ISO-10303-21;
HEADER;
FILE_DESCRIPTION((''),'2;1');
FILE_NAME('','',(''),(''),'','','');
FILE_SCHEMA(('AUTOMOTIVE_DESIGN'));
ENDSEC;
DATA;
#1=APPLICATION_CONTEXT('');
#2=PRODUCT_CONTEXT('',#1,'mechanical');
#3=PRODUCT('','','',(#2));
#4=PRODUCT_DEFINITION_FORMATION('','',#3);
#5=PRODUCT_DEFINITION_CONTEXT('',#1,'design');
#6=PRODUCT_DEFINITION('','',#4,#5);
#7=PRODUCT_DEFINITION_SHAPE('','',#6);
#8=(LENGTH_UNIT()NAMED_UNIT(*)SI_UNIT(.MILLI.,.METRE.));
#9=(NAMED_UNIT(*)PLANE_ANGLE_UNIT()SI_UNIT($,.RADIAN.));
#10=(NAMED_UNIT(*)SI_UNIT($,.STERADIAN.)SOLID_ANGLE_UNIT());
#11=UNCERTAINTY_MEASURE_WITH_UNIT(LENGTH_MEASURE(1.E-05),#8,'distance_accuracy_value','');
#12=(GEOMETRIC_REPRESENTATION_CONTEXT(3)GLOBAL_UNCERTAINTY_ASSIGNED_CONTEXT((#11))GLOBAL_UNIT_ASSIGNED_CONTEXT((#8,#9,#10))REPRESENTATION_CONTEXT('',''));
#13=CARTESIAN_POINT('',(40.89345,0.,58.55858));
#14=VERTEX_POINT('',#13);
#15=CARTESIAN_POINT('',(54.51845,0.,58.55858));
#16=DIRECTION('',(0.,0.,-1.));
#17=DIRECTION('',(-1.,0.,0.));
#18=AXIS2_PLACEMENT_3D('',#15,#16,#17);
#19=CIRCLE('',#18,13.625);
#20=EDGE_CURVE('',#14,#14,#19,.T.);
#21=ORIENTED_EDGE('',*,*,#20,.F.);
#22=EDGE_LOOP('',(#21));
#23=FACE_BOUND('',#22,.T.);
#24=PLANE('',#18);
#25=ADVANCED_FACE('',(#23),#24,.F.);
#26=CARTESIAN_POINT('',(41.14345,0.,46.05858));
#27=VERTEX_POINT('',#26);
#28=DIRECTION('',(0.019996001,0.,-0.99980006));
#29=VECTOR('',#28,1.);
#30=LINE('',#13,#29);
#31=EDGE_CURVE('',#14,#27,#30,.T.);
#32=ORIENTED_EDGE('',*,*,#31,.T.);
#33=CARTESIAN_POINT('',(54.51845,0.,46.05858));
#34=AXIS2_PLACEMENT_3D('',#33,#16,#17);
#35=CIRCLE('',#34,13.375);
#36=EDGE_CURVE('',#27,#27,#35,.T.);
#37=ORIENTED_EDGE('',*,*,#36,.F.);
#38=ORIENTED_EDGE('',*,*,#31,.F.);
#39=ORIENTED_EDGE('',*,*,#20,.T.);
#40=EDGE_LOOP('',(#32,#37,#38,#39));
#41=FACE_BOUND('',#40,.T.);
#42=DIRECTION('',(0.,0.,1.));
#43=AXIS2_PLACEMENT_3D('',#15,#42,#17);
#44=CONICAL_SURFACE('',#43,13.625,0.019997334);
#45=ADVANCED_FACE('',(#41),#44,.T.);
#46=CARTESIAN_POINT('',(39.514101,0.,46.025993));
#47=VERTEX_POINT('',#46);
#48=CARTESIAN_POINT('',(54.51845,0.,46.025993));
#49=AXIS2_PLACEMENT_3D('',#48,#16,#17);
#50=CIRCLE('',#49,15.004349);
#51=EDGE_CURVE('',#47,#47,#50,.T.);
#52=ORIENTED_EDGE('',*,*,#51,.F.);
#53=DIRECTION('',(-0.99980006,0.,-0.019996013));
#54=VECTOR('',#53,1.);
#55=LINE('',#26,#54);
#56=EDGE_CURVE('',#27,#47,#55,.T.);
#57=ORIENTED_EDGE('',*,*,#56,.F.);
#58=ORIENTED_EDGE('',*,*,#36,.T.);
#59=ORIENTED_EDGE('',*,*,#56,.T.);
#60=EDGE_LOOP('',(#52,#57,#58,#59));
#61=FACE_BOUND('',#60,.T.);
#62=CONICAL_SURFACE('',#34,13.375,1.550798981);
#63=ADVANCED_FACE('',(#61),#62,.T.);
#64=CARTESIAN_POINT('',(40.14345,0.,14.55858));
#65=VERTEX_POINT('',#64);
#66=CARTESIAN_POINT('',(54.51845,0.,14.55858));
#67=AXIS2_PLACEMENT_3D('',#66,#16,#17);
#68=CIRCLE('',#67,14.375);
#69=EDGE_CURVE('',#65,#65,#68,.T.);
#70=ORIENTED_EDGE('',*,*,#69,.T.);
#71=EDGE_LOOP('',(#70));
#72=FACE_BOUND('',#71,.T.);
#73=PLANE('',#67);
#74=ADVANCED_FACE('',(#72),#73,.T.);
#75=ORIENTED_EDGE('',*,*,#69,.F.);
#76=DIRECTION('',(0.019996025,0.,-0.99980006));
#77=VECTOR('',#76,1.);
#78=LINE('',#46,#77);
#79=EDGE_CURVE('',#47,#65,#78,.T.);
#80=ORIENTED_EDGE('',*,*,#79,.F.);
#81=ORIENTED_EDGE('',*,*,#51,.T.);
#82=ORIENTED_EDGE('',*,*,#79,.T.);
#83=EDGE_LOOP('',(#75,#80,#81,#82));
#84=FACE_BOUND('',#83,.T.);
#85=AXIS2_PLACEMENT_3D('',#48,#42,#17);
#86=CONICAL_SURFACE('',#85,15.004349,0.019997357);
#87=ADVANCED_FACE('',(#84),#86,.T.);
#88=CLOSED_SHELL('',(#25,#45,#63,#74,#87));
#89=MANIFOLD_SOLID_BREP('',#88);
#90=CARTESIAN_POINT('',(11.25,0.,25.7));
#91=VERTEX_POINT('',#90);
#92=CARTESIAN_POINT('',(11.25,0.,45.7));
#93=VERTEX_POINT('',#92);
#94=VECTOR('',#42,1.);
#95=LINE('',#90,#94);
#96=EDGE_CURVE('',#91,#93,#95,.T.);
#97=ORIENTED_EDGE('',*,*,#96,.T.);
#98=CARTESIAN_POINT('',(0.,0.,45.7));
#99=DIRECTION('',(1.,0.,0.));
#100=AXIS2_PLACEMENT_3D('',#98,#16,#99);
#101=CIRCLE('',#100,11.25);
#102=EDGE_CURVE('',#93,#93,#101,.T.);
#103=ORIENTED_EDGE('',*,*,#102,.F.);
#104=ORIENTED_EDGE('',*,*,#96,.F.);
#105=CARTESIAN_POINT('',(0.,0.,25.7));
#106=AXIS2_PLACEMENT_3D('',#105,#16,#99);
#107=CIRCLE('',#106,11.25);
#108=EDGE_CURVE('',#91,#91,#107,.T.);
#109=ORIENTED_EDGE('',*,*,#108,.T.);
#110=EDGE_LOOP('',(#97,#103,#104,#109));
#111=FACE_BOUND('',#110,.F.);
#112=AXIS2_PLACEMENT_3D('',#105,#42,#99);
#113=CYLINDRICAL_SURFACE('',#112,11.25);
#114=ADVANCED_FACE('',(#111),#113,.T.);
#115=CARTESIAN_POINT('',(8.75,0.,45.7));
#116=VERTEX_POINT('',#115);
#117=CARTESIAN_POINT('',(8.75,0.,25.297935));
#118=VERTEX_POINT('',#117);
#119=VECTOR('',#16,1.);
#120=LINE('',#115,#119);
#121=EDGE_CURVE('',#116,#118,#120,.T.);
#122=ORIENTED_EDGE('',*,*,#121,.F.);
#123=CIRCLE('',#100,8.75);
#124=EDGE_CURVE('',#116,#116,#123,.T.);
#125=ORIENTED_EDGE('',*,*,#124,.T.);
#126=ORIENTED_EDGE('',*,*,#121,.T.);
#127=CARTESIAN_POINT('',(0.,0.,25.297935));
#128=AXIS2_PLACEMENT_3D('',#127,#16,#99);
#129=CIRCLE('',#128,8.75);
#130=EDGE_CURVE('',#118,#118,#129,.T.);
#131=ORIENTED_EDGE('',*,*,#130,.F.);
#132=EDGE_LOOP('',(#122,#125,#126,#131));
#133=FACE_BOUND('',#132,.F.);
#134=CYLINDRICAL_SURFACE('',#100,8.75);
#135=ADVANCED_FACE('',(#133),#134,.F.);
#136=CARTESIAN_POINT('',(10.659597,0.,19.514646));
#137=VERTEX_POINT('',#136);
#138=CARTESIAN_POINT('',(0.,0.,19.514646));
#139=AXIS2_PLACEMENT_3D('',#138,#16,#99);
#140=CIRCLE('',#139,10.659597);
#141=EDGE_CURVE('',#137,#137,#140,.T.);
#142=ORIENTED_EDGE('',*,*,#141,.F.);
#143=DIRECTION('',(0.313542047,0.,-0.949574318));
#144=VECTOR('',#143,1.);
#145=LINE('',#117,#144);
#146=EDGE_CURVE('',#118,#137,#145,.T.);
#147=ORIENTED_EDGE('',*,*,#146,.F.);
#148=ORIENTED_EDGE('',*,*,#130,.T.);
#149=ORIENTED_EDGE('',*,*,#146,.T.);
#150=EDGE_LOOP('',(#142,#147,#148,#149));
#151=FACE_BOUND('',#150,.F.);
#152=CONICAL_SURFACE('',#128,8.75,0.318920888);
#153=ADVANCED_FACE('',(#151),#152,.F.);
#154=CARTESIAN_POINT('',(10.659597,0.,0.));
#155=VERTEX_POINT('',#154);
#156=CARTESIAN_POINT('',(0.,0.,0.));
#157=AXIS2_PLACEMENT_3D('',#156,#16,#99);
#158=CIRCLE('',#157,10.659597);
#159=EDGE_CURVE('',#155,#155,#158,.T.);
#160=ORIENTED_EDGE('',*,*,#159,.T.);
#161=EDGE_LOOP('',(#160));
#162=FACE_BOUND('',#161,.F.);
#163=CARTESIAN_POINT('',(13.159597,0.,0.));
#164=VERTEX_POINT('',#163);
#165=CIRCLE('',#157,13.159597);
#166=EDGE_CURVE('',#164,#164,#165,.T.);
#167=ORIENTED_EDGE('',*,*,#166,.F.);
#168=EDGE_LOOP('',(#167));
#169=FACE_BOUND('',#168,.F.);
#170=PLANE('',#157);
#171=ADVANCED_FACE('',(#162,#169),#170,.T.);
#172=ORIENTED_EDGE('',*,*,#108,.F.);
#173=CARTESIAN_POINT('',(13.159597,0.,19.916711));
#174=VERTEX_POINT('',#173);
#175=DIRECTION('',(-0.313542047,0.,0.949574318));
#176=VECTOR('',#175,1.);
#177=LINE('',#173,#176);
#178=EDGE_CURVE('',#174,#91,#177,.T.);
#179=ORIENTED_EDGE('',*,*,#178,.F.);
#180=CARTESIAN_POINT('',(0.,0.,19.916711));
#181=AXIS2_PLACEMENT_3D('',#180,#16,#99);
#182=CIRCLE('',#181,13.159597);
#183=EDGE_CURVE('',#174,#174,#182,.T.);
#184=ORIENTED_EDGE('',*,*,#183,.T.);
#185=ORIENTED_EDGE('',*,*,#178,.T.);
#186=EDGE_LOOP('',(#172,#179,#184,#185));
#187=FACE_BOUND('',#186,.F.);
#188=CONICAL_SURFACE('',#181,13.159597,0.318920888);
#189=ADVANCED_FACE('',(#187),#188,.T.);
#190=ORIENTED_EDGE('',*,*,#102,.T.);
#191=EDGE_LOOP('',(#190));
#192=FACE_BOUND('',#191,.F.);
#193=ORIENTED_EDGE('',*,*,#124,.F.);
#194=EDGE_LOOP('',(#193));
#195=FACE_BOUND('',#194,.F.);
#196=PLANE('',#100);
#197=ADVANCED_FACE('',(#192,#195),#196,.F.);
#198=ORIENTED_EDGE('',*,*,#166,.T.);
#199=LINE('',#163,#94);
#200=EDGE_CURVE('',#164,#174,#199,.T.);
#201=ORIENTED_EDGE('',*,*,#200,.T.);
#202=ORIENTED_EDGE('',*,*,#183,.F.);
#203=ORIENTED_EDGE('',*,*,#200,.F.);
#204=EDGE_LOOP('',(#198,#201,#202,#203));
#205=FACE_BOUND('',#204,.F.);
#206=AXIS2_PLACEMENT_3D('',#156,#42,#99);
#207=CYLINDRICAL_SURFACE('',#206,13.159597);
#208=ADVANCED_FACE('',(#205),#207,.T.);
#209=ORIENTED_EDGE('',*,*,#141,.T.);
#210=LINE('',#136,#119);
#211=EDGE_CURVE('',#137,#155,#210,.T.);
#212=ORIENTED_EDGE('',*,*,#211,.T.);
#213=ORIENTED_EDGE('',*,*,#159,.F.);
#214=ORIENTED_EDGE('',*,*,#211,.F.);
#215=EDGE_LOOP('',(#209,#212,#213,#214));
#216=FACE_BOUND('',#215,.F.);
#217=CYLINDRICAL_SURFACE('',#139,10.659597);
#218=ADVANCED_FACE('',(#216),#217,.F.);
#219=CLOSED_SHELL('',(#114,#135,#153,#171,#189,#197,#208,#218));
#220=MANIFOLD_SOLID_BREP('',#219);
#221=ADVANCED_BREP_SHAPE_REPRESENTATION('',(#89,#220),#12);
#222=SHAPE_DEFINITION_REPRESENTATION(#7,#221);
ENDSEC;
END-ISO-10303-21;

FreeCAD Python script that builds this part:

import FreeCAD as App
import Part
import Sketcher


def add_polygon(sketch, points):
    """Adds a closed chain of lines whose ends are joined by coincident constraints."""
    first, n = sketch.GeometryCount, len(points)
    for a, b in zip(points, points[1:] + points[:1]):
        sketch.addGeometry(Part.LineSegment(App.Vector(*a, 0), App.Vector(*b, 0)), False)
    for i in range(n):
        sketch.addConstraint(Sketcher.Constraint("Coincident", first + i, 2, first + (i + 1) % n, 1))

doc = App.newDocument("Part")
params = doc.addObject("Spreadsheet::Sheet", "Params")
for row, (alias, value) in enumerate([
    ("sketch1_height", "20 mm"),
    ("sketch1_width", "2.5 mm"),
    ("revolution_angle", "360 deg"),
    ("sketch2_height", "44 mm"),
    ("revolution2_angle", "360 deg"),
], start=1):
    params.set(f"A{row}", alias)
    params.set(f"B{row}", "=" + value)
    params.setAlias(f"B{row}", alias)

body = doc.addObject("PartDesign::Body", "Body")

# Sketch on XZ plane
sketch1 = body.newObject("Sketcher::SketchObject", "Sketch")
sketch1.AttachmentSupport = (doc.getObject("XZ_Plane"), [""])
sketch1.MapMode = "FlatFace"
add_polygon(sketch1, [(11.2, 25.7), (11.2, 45.7), (8.8, 45.7), (8.8, 25.3), (10.7, 19.5), (10.7, 0), (13.2, 0), (13.2, 19.9)])  # lines 0-7
sketch1.addConstraint([
    Sketcher.Constraint("Vertical", 0),
    Sketcher.Constraint("Horizontal", 1),
    Sketcher.Constraint("Vertical", 2),
    Sketcher.Constraint("Vertical", 4),
    Sketcher.Constraint("Horizontal", 5),
    Sketcher.Constraint("Vertical", 6),
    Sketcher.Constraint("PointOnObject", 4, 2, -1),
    Sketcher.Constraint("Parallel", 3, 7),
    Sketcher.Constraint("Equal", 1, 5),
    Sketcher.Constraint("DistanceY", 0, 1, 0, 2, 20.0),
    Sketcher.Constraint("DistanceX", 1, 2, 1, 1, 2.5),
    Sketcher.Constraint("DistanceY", -1, 1, 0, 2, 45.7),
    Sketcher.Constraint("DistanceX", -1, 1, 0, 2, 11.25),
    Sketcher.Constraint("Distance", 3, 6.090402),
    Sketcher.Constraint("DistanceY", 6, 1, 6, 2, 19.916711),
    Sketcher.Constraint("DistanceY", 2, 2, 2, 1, 20.402065),
])
sketch1.setExpression("Constraints[17]", "Params.sketch1_height")
sketch1.setExpression("Constraints[18]", "Params.sketch1_width")
revolution = body.newObject("PartDesign::Revolution", "Revolution")
revolution.Profile = sketch1
revolution.ReferenceAxis = (sketch1, ["V_Axis"])
revolution.setExpression("Angle", "Params.revolution_angle")
body2 = doc.addObject("PartDesign::Body", "Body001")

# Sketch on XZ plane
sketch2 = body2.newObject("Sketcher::SketchObject", "Sketch001")
sketch2.AttachmentSupport = (doc.getObject("XZ_Plane001"), [""])
sketch2.MapMode = "FlatFace"
add_polygon(sketch2, [(39.5, 46), (40.1, 14.6), (54.5, 14.6), (54.5, 58.6), (40.9, 58.6), (41.1, 46.1)])  # lines 0-5
sketch2.addGeometry(Part.LineSegment(App.Vector(54.5, 58.6, 0), App.Vector(54.5, 14.6, 0)), True)  # axis
sketch2.addConstraint([
    Sketcher.Constraint("Horizontal", 1),
    Sketcher.Constraint("Vertical", 2),
    Sketcher.Constraint("Horizontal", 3),
    Sketcher.Constraint("Vertical", 6),
    Sketcher.Constraint("Coincident", 6, 1, 2, 2),
    Sketcher.Constraint("Parallel", 0, 4),
    Sketcher.Constraint("Perpendicular", 4, 5),
    Sketcher.Constraint("Horizontal", 0, 2, 6, 2),
    Sketcher.Constraint("DistanceY", 2, 1, 2, 2, 44.0),
    Sketcher.Constraint("DistanceX", 0, 2, 4, 2, 1.0),
    Sketcher.Constraint("DistanceY", 4, 2, 3, 2, 12.5),
    Sketcher.Constraint("DistanceX", 1, 1, 1, 2, 14.375),
    Sketcher.Constraint("DistanceX", 3, 2, 3, 1, 13.625),
    Sketcher.Constraint("DistanceX", -1, 1, 5, 2, 39.514101),
    Sketcher.Constraint("DistanceY", -1, 1, 0, 2, 14.55858),
])
sketch2.setExpression("Constraints[14]", "Params.sketch2_height")
revolution2 = body2.newObject("PartDesign::Revolution", "Revolution001")
revolution2.Profile = sketch2
revolution2.ReferenceAxis = (sketch2, ["Axis0"])
revolution2.setExpression("Angle", "Params.revolution2_angle")

doc.recompute()
